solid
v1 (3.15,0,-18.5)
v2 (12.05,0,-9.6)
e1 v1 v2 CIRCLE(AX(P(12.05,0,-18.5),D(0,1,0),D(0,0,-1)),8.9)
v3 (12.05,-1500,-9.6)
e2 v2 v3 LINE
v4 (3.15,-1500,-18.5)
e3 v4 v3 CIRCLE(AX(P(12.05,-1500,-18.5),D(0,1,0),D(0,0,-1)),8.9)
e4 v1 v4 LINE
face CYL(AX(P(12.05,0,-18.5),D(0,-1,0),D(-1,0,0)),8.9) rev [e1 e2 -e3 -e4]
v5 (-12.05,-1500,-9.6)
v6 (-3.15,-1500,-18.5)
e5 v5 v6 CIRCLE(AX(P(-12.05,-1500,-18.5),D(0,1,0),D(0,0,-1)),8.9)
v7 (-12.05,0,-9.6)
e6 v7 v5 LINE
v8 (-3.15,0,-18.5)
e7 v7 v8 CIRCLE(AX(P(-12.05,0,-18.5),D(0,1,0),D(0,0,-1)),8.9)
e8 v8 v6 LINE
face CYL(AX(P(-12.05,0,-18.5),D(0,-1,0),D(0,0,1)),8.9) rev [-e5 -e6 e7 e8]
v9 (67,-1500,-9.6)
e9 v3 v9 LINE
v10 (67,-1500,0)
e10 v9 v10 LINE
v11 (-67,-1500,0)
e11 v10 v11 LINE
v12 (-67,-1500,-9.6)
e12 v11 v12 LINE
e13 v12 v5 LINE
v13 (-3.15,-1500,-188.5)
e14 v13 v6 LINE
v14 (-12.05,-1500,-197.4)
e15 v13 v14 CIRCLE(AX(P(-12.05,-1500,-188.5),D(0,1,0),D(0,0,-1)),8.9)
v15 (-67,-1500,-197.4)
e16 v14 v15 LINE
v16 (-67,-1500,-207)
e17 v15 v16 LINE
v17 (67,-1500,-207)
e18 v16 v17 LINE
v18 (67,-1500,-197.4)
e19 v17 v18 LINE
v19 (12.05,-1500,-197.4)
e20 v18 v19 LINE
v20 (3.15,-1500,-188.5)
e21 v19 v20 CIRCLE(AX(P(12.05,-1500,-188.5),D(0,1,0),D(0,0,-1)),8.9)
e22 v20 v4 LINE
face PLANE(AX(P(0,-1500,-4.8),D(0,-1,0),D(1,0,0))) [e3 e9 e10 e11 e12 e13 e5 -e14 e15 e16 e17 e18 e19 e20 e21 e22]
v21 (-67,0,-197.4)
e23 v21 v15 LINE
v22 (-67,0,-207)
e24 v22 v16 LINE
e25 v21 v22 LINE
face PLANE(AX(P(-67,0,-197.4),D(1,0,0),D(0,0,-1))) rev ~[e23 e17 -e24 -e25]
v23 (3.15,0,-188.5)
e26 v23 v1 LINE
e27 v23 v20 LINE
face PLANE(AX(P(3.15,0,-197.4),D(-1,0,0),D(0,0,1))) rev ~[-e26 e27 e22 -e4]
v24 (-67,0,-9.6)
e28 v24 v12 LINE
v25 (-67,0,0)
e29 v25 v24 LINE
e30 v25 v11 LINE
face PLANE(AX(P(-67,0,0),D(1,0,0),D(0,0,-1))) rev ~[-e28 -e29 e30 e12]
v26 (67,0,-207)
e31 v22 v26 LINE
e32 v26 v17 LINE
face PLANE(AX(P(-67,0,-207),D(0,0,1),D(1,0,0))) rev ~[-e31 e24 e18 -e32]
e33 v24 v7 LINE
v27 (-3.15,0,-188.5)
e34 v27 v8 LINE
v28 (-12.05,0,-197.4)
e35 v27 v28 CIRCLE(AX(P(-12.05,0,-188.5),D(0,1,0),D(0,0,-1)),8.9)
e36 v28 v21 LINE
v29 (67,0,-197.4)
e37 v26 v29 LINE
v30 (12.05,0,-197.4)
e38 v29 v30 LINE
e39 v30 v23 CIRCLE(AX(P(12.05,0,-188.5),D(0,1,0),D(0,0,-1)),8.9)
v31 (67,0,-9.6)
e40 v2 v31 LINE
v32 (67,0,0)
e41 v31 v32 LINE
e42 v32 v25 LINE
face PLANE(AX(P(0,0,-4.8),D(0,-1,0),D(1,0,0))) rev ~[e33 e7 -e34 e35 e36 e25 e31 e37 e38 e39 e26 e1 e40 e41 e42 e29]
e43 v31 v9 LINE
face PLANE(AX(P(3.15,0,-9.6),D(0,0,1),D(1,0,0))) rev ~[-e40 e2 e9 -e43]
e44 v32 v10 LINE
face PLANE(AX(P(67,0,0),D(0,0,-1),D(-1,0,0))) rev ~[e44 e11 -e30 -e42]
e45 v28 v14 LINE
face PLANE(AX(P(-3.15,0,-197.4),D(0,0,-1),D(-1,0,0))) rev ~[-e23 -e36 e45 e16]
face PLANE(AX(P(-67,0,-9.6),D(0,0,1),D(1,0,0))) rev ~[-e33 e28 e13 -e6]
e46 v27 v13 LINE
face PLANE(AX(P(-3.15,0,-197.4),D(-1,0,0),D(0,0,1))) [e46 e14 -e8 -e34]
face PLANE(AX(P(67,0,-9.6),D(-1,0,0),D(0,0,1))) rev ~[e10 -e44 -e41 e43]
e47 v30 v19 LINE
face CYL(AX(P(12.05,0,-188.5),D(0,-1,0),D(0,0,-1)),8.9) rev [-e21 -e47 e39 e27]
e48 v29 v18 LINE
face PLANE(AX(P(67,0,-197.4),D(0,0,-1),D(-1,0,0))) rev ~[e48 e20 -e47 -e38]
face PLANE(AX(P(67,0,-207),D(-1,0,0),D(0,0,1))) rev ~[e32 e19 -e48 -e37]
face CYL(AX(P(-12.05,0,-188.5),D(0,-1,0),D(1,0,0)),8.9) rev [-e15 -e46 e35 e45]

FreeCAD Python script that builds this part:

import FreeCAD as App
import Part
import Sketcher
from FreeCAD import Vector


def edges_at(feature, points):
    """Names of the edges that pass closest to the given points."""
    edges = feature.Shape.Edges
    near = lambda p: min(range(len(edges)), key=lambda i: edges[i].distToShape(Part.Vertex(*p))[0])
    return sorted({f"Edge{near(p) + 1}" for p in points})

doc = App.newDocument("Part")
body = doc.addObject("PartDesign::Body", "Body")

sketch1 = body.newObject("Sketcher::SketchObject", "Sketch")
sketch1.AttachmentSupport = (doc.getObject("XZ_Plane"), [""])
sketch1.MapMode = "FlatFace"
sketch1.addGeometry([
    Part.LineSegment(Vector(67, 0, 0), Vector(-67, 0, 0)),
    Part.LineSegment(Vector(-67, 0, 0), Vector(-67, -9.6, 0)),
    Part.LineSegment(Vector(-67, -9.6, 0), Vector(-3.15, -9.6, 0)),
    Part.LineSegment(Vector(-3.15, -9.6, 0), Vector(-3.15, -197.4, 0)),
    Part.LineSegment(Vector(-3.15, -197.4, 0), Vector(-67, -197.4, 0)),
    Part.LineSegment(Vector(-67, -197.4, 0), Vector(-67, -207, 0)),
    Part.LineSegment(Vector(-67, -207, 0), Vector(67, -207, 0)),
    Part.LineSegment(Vector(67, -207, 0), Vector(67, -197.4, 0)),
    Part.LineSegment(Vector(67, -197.4, 0), Vector(3.15, -197.4, 0)),
    Part.LineSegment(Vector(3.15, -197.4, 0), Vector(3.15, -9.6, 0)),
    Part.LineSegment(Vector(3.15, -9.6, 0), Vector(67, -9.6, 0)),
    Part.LineSegment(Vector(67, -9.6, 0), Vector(67, 0, 0)),
], False)
sketch1.addConstraint([
    Sketcher.Constraint("Coincident", 0, 2, 1, 1),
    Sketcher.Constraint("Coincident", 1, 2, 2, 1),
    Sketcher.Constraint("Coincident", 2, 2, 3, 1),
    Sketcher.Constraint("Coincident", 3, 2, 4, 1),
    Sketcher.Constraint("Coincident", 4, 2, 5, 1),
    Sketcher.Constraint("Coincident", 5, 2, 6, 1),
    Sketcher.Constraint("Coincident", 6, 2, 7, 1),
    Sketcher.Constraint("Coincident", 7, 2, 8, 1),
    Sketcher.Constraint("Coincident", 8, 2, 9, 1),
    Sketcher.Constraint("Coincident", 9, 2, 10, 1),
    Sketcher.Constraint("Coincident", 10, 2, 11, 1),
    Sketcher.Constraint("Coincident", 11, 2, 0, 1),
    Sketcher.Constraint("Horizontal", 0),
    Sketcher.Constraint("Vertical", 1),
    Sketcher.Constraint("Horizontal", 2),
    Sketcher.Constraint("Vertical", 3),
    Sketcher.Constraint("Horizontal", 4),
    Sketcher.Constraint("Vertical", 5),
    Sketcher.Constraint("Horizontal", 6),
    Sketcher.Constraint("Vertical", 7),
    Sketcher.Constraint("Horizontal", 8),
    Sketcher.Constraint("Vertical", 9),
    Sketcher.Constraint("Horizontal", 10),
    Sketcher.Constraint("Vertical", 11),
    Sketcher.Constraint("Symmetric", 0, 2, 11, 2, -1, 1),
    Sketcher.Constraint("Symmetric", 4, 2, 7, 2, -2),
    Sketcher.Constraint("Symmetric", 2, 2, 9, 2, -2),
    Sketcher.Constraint("Vertical", 1, 2, 4, 2),
    Sketcher.Constraint("Equal", 1, 5),
    Sketcher.Constraint("DistanceX", 0, 2, 0, 1, 134.0),
    Sketcher.Constraint("DistanceY", 1, 2, 1, 1, 9.6),
    Sketcher.Constraint("DistanceY", 3, 2, 3, 1, 187.8),
    Sketcher.Constraint("DistanceX", 2, 1, 2, 2, 63.85),
])
pad1 = body.newObject("PartDesign::Pad", "Pad")
pad1.Profile = sketch1
pad1.Length = 1500
doc.recompute()

fillet = body.newObject("PartDesign::Fillet", "Fillet")
fillet.Base = (pad1, edges_at(pad1, [
    (3.15, -750, -9.6),
    (-3.15, -750, -9.6),
    (3.15, -750, -197.4),
    (-3.15, -750, -197.4),
]))
fillet.Radius = 8.9

doc.recompute()
